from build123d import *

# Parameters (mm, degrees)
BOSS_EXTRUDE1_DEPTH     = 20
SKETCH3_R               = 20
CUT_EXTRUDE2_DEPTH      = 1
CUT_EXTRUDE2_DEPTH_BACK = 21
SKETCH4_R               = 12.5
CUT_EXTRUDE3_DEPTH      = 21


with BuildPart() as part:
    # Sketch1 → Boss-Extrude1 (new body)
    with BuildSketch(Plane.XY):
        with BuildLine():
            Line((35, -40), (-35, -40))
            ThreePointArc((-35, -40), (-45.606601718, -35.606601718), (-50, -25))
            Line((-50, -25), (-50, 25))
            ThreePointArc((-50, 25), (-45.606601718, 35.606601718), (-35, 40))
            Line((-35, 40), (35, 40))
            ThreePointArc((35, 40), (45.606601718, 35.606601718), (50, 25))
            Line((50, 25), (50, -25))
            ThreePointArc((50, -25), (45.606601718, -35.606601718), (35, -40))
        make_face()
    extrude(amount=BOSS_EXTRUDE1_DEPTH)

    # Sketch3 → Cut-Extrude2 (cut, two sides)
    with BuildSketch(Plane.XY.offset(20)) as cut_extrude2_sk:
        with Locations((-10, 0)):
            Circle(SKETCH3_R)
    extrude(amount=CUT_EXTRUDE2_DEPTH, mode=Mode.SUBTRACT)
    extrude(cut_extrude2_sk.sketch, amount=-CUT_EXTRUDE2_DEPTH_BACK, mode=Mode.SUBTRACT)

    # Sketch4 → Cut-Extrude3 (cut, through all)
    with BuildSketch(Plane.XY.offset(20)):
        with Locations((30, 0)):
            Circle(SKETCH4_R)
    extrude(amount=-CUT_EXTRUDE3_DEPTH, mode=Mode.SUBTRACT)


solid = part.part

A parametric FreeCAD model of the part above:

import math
import FreeCAD as App
import Part
import Sketcher
from FreeCAD import Vector
Q = App.Units.Quantity

doc = App.newDocument("Part")
params = doc.addObject("Spreadsheet::Sheet", "Params")
for row, (alias, value) in enumerate([
    ("sketch1_radius", "15 mm"),
    ("sketch1_width", "70 mm"),
    ("sketch1_height", "50 mm"),
    ("pad1_length", "20 mm"),
    ("sketch2_diameter", "40 mm"),
    ("sketch3_diameter", "25 mm"),
], start=1):
    params.set(f"A{row}", alias)
    params.set(f"B{row}", "=" + value)
    params.setAlias(f"B{row}", alias)

body = doc.addObject("PartDesign::Body", "Body")

# Sketch on XY plane
sketch1 = body.newObject("Sketcher::SketchObject", "Sketch")
sketch1.AttachmentSupport = (doc.getObject("XY_Plane"), [""])
sketch1.MapMode = "FlatFace"
sketch1.addGeometry([
    Part.LineSegment(Vector(-35, -40, 0), Vector(35, -40, 0)),  # 0
    Part.ArcOfCircle(Part.Circle(Vector(35, -25, 0), Vector(0, 0, 1), 15), math.radians(-90), math.radians(0)),  # 1
    Part.LineSegment(Vector(50, -25, 0), Vector(50, 25, 0)),  # 2
    Part.ArcOfCircle(Part.Circle(Vector(35, 25, 0), Vector(0, 0, 1), 15), math.radians(0), math.radians(90)),  # 3
    Part.LineSegment(Vector(35, 40, 0), Vector(-35, 40, 0)),  # 4
    Part.ArcOfCircle(Part.Circle(Vector(-35, 25, 0), Vector(0, 0, 1), 15), math.radians(90), math.radians(180)),  # 5
    Part.LineSegment(Vector(-50, 25, 0), Vector(-50, -25, 0)),  # 6
    Part.ArcOfCircle(Part.Circle(Vector(-35, -25, 0), Vector(0, 0, 1), 15), math.radians(180), math.radians(270)),  # 7
], False)
sketch1.addConstraint([
    Sketcher.Constraint("Tangent", 0, 2, 1, 1),
    Sketcher.Constraint("Tangent", 1, 2, 2, 1),
    Sketcher.Constraint("Tangent", 2, 2, 3, 1),
    Sketcher.Constraint("Tangent", 3, 2, 4, 1),
    Sketcher.Constraint("Tangent", 4, 2, 5, 1),
    Sketcher.Constraint("Tangent", 5, 2, 6, 1),
    Sketcher.Constraint("Tangent", 6, 2, 7, 1),
    Sketcher.Constraint("Tangent", 7, 2, 0, 1),
    Sketcher.Constraint("Horizontal", 0),
    Sketcher.Constraint("Vertical", 2),
    Sketcher.Constraint("Horizontal", 4),
    Sketcher.Constraint("Vertical", 6),
    Sketcher.Constraint("Equal", 1, 3),
    Sketcher.Constraint("Equal", 3, 5),
    Sketcher.Constraint("Equal", 5, 7),
    Sketcher.Constraint("Symmetric", 1, 3, 5, 3, -1, 1),
    Sketcher.Constraint("Radius", 1, Q("15 mm")),
    Sketcher.Constraint("DistanceX", 0, 1, 0, 2, Q("70 mm")),
    Sketcher.Constraint("DistanceY", 2, 1, 2, 2, Q("50 mm")),
])
sketch1.setExpression("Constraints[16]", "Params.sketch1_radius")
sketch1.setExpression("Constraints[17]", "Params.sketch1_width")
sketch1.setExpression("Constraints[18]", "Params.sketch1_height")
pad1 = body.newObject("PartDesign::Pad", "Pad")
pad1.Profile = sketch1
pad1.setExpression("Length", "Params.pad1_length")

# Sketch on XY plane
sketch2 = body.newObject("Sketcher::SketchObject", "Sketch001")
sketch2.AttachmentSupport = (doc.getObject("XY_Plane"), [""])
sketch2.MapMode = "FlatFace"
sketch2.AttachmentOffset = App.Placement(Vector(0, 0, 20), App.Rotation())
sketch2.addGeometry(Part.Circle(Vector(-10, 0, 0), Vector(0, 0, 1), 20), False)
sketch2.addConstraint([
    Sketcher.Constraint("PointOnObject", 0, 3, -1),
    Sketcher.Constraint("Diameter", 0, Q("40 mm")),
    Sketcher.Constraint("DistanceX", 0, 3, -1, 1, Q("10 mm")),
])
sketch2.setExpression("Constraints[1]", "Params.sketch2_diameter")
pocket1 = body.newObject("PartDesign::Pocket", "Pocket")
pocket1.Profile = sketch2
pocket1.Type = "ThroughAll"
pocket1.Midplane = True

# Sketch on XY plane
sketch3 = body.newObject("Sketcher::SketchObject", "Sketch002")
sketch3.AttachmentSupport = (doc.getObject("XY_Plane"), [""])
sketch3.MapMode = "FlatFace"
sketch3.AttachmentOffset = App.Placement(Vector(0, 0, 20), App.Rotation())
sketch3.addGeometry(Part.Circle(Vector(30, 0, 0), Vector(0, 0, 1), 12.5), False)
sketch3.addConstraint([
    Sketcher.Constraint("PointOnObject", 0, 3, -1),
    Sketcher.Constraint("Diameter", 0, Q("25 mm")),
    Sketcher.Constraint("DistanceX", -1, 1, 0, 3, Q("30 mm")),
])
sketch3.setExpression("Constraints[1]", "Params.sketch3_diameter")
pocket2 = body.newObject("PartDesign::Pocket", "Pocket001")
pocket2.Profile = sketch3
pocket2.Type = "ThroughAll"

doc.recompute()
